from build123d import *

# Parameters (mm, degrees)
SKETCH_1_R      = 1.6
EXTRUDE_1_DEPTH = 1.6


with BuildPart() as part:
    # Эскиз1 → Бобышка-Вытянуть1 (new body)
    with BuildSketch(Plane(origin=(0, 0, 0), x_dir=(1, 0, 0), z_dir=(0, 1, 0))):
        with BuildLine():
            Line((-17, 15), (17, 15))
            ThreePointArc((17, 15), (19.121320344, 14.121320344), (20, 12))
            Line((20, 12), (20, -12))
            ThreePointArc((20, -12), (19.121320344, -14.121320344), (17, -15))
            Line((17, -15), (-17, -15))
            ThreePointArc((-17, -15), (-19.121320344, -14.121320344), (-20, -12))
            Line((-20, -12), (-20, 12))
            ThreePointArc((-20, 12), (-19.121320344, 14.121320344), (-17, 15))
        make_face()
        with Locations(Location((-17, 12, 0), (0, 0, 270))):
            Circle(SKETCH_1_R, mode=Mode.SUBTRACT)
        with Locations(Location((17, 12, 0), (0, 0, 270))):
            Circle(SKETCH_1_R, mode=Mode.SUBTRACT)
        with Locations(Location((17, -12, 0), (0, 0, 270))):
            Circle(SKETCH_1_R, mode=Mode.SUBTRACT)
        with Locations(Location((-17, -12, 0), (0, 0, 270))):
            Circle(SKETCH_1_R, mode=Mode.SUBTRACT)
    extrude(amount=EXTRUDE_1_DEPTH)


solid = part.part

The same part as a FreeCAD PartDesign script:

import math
import FreeCAD as App
import Part
import Sketcher

V = App.Vector

doc = App.newDocument("Part")
body = doc.addObject("PartDesign::Body", "Body")

sketch1 = body.newObject("Sketcher::SketchObject", "Sketch")
sketch1.AttachmentSupport = (doc.getObject("XZ_Plane"), [""])
sketch1.MapMode = "FlatFace"
sketch1.addGeometry(Part.LineSegment(V(17, -15, 0), V(-17, -15, 0)), False)
sketch1.addGeometry(Part.ArcOfCircle(Part.Circle(V(-17, -12, 0), V(0, 0, 1), 3), math.radians(180), math.radians(270)), False)
sketch1.addGeometry(Part.LineSegment(V(-20, -12, 0), V(-20, 12, 0)), False)
sketch1.addGeometry(Part.ArcOfCircle(Part.Circle(V(-17, 12, 0), V(0, 0, 1), 3), math.radians(90), math.radians(180)), False)
sketch1.addGeometry(Part.LineSegment(V(-17, 15, 0), V(17, 15, 0)), False)
sketch1.addGeometry(Part.ArcOfCircle(Part.Circle(V(17, 12, 0), V(0, 0, 1), 3), math.radians(0), math.radians(90)), False)
sketch1.addGeometry(Part.LineSegment(V(20, 12, 0), V(20, -12, 0)), False)
sketch1.addGeometry(Part.ArcOfCircle(Part.Circle(V(17, -12, 0), V(0, 0, 1), 3), math.radians(-90), math.radians(0)), False)
sketch1.addGeometry(Part.Circle(V(17, 12, 0), V(0, 0, 1), 1.6), False)
sketch1.addGeometry(Part.Circle(V(-17, 12, 0), V(0, 0, 1), 1.6), False)
sketch1.addGeometry(Part.Circle(V(17, -12, 0), V(0, 0, 1), 1.6), False)
sketch1.addGeometry(Part.Circle(V(-17, -12, 0), V(0, 0, 1), 1.6), False)
sketch1.addConstraint(Sketcher.Constraint("Tangent", 0, 2, 1, 2))
sketch1.addConstraint(Sketcher.Constraint("Tangent", 1, 1, 2, 1))
sketch1.addConstraint(Sketcher.Constraint("Tangent", 2, 2, 3, 2))
sketch1.addConstraint(Sketcher.Constraint("Tangent", 3, 1, 4, 1))
sketch1.addConstraint(Sketcher.Constraint("Tangent", 4, 2, 5, 2))
sketch1.addConstraint(Sketcher.Constraint("Tangent", 5, 1, 6, 1))
sketch1.addConstraint(Sketcher.Constraint("Tangent", 6, 2, 7, 2))
sketch1.addConstraint(Sketcher.Constraint("Tangent", 7, 1, 0, 1))
sketch1.addConstraint(Sketcher.Constraint("Horizontal", 0))
sketch1.addConstraint(Sketcher.Constraint("Vertical", 2))
sketch1.addConstraint(Sketcher.Constraint("Horizontal", 4))
sketch1.addConstraint(Sketcher.Constraint("Vertical", 6))
sketch1.addConstraint(Sketcher.Constraint("Coincident", 8, 3, 5, 3))
sketch1.addConstraint(Sketcher.Constraint("Coincident", 9, 3, 3, 3))
sketch1.addConstraint(Sketcher.Constraint("Coincident", 10, 3, 7, 3))
sketch1.addConstraint(Sketcher.Constraint("Coincident", 11, 3, 1, 3))
sketch1.addConstraint(Sketcher.Constraint("Equal", 1, 3))
sketch1.addConstraint(Sketcher.Constraint("Equal", 3, 5))
sketch1.addConstraint(Sketcher.Constraint("Equal", 5, 7))
sketch1.addConstraint(Sketcher.Constraint("Equal", 8, 9))
sketch1.addConstraint(Sketcher.Constraint("Equal", 9, 10))
sketch1.addConstraint(Sketcher.Constraint("Equal", 10, 11))
sketch1.addConstraint(Sketcher.Constraint("Symmetric", 1, 3, 5, 3, -1, 1))
sketch1.addConstraint(Sketcher.Constraint("Radius", 1, 3.0))
sketch1.addConstraint(Sketcher.Constraint("Diameter", 8, 3.2))
sketch1.addConstraint(Sketcher.Constraint("DistanceX", 0, 2, 0, 1, 34.0))
sketch1.addConstraint(Sketcher.Constraint("DistanceY", 2, 1, 2, 2, 24.0))
pad1 = body.newObject("PartDesign::Pad", "Pad")
pad1.Profile = sketch1
pad1.Length = 1.6
pad1.Reversed = True

doc.recompute()
